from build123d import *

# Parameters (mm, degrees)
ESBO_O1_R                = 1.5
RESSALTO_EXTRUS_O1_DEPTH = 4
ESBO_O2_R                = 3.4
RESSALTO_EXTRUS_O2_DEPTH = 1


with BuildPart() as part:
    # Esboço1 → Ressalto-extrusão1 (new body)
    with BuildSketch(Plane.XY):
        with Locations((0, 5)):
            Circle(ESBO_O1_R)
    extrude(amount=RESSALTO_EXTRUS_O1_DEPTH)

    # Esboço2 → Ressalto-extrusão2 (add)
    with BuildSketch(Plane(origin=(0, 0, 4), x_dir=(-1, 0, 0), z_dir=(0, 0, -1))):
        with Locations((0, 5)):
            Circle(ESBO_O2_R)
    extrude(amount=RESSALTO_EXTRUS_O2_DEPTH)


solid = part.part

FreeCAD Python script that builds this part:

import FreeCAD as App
import Part
import Sketcher
Q = App.Units.Quantity

doc = App.newDocument("Part")
body = doc.addObject("PartDesign::Body", "Body")

# Sketch on XY plane
sketch1 = body.newObject("Sketcher::SketchObject", "Sketch")
sketch1.AttachmentSupport = (doc.getObject("XY_Plane"), [""])
sketch1.MapMode = "FlatFace"
sketch1.addGeometry(Part.Circle(App.Vector(0, 5, 0), App.Vector(0, 0, 1), 1.5), False)
sketch1.addConstraint([
    Sketcher.Constraint("PointOnObject", 0, 3, -2),
    Sketcher.Constraint("Diameter", 0, Q("3 mm")),
    Sketcher.Constraint("DistanceY", -1, 1, 0, 3, Q("5 mm")),
])
pad1 = body.newObject("PartDesign::Pad", "Pad")
pad1.Profile = sketch1
pad1.Length = 4

# Sketch on XY plane
sketch2 = body.newObject("Sketcher::SketchObject", "Sketch001")
sketch2.AttachmentSupport = (doc.getObject("XY_Plane"), [""])
sketch2.MapMode = "FlatFace"
sketch2.AttachmentOffset = App.Placement(App.Vector(0, 0, 4), App.Rotation())
sketch2.addGeometry(Part.Circle(App.Vector(0, 5, 0), App.Vector(0, 0, 1), 3.4), False)
sketch2.addConstraint([
    Sketcher.Constraint("PointOnObject", 0, 3, -2),
    Sketcher.Constraint("Diameter", 0, Q("6.8 mm")),
    Sketcher.Constraint("DistanceY", -1, 1, 0, 3, Q("5 mm")),
])
pad2 = body.newObject("PartDesign::Pad", "Pad001")
pad2.Profile = sketch2
pad2.Length = 1
pad2.Reversed = True

doc.recompute()
